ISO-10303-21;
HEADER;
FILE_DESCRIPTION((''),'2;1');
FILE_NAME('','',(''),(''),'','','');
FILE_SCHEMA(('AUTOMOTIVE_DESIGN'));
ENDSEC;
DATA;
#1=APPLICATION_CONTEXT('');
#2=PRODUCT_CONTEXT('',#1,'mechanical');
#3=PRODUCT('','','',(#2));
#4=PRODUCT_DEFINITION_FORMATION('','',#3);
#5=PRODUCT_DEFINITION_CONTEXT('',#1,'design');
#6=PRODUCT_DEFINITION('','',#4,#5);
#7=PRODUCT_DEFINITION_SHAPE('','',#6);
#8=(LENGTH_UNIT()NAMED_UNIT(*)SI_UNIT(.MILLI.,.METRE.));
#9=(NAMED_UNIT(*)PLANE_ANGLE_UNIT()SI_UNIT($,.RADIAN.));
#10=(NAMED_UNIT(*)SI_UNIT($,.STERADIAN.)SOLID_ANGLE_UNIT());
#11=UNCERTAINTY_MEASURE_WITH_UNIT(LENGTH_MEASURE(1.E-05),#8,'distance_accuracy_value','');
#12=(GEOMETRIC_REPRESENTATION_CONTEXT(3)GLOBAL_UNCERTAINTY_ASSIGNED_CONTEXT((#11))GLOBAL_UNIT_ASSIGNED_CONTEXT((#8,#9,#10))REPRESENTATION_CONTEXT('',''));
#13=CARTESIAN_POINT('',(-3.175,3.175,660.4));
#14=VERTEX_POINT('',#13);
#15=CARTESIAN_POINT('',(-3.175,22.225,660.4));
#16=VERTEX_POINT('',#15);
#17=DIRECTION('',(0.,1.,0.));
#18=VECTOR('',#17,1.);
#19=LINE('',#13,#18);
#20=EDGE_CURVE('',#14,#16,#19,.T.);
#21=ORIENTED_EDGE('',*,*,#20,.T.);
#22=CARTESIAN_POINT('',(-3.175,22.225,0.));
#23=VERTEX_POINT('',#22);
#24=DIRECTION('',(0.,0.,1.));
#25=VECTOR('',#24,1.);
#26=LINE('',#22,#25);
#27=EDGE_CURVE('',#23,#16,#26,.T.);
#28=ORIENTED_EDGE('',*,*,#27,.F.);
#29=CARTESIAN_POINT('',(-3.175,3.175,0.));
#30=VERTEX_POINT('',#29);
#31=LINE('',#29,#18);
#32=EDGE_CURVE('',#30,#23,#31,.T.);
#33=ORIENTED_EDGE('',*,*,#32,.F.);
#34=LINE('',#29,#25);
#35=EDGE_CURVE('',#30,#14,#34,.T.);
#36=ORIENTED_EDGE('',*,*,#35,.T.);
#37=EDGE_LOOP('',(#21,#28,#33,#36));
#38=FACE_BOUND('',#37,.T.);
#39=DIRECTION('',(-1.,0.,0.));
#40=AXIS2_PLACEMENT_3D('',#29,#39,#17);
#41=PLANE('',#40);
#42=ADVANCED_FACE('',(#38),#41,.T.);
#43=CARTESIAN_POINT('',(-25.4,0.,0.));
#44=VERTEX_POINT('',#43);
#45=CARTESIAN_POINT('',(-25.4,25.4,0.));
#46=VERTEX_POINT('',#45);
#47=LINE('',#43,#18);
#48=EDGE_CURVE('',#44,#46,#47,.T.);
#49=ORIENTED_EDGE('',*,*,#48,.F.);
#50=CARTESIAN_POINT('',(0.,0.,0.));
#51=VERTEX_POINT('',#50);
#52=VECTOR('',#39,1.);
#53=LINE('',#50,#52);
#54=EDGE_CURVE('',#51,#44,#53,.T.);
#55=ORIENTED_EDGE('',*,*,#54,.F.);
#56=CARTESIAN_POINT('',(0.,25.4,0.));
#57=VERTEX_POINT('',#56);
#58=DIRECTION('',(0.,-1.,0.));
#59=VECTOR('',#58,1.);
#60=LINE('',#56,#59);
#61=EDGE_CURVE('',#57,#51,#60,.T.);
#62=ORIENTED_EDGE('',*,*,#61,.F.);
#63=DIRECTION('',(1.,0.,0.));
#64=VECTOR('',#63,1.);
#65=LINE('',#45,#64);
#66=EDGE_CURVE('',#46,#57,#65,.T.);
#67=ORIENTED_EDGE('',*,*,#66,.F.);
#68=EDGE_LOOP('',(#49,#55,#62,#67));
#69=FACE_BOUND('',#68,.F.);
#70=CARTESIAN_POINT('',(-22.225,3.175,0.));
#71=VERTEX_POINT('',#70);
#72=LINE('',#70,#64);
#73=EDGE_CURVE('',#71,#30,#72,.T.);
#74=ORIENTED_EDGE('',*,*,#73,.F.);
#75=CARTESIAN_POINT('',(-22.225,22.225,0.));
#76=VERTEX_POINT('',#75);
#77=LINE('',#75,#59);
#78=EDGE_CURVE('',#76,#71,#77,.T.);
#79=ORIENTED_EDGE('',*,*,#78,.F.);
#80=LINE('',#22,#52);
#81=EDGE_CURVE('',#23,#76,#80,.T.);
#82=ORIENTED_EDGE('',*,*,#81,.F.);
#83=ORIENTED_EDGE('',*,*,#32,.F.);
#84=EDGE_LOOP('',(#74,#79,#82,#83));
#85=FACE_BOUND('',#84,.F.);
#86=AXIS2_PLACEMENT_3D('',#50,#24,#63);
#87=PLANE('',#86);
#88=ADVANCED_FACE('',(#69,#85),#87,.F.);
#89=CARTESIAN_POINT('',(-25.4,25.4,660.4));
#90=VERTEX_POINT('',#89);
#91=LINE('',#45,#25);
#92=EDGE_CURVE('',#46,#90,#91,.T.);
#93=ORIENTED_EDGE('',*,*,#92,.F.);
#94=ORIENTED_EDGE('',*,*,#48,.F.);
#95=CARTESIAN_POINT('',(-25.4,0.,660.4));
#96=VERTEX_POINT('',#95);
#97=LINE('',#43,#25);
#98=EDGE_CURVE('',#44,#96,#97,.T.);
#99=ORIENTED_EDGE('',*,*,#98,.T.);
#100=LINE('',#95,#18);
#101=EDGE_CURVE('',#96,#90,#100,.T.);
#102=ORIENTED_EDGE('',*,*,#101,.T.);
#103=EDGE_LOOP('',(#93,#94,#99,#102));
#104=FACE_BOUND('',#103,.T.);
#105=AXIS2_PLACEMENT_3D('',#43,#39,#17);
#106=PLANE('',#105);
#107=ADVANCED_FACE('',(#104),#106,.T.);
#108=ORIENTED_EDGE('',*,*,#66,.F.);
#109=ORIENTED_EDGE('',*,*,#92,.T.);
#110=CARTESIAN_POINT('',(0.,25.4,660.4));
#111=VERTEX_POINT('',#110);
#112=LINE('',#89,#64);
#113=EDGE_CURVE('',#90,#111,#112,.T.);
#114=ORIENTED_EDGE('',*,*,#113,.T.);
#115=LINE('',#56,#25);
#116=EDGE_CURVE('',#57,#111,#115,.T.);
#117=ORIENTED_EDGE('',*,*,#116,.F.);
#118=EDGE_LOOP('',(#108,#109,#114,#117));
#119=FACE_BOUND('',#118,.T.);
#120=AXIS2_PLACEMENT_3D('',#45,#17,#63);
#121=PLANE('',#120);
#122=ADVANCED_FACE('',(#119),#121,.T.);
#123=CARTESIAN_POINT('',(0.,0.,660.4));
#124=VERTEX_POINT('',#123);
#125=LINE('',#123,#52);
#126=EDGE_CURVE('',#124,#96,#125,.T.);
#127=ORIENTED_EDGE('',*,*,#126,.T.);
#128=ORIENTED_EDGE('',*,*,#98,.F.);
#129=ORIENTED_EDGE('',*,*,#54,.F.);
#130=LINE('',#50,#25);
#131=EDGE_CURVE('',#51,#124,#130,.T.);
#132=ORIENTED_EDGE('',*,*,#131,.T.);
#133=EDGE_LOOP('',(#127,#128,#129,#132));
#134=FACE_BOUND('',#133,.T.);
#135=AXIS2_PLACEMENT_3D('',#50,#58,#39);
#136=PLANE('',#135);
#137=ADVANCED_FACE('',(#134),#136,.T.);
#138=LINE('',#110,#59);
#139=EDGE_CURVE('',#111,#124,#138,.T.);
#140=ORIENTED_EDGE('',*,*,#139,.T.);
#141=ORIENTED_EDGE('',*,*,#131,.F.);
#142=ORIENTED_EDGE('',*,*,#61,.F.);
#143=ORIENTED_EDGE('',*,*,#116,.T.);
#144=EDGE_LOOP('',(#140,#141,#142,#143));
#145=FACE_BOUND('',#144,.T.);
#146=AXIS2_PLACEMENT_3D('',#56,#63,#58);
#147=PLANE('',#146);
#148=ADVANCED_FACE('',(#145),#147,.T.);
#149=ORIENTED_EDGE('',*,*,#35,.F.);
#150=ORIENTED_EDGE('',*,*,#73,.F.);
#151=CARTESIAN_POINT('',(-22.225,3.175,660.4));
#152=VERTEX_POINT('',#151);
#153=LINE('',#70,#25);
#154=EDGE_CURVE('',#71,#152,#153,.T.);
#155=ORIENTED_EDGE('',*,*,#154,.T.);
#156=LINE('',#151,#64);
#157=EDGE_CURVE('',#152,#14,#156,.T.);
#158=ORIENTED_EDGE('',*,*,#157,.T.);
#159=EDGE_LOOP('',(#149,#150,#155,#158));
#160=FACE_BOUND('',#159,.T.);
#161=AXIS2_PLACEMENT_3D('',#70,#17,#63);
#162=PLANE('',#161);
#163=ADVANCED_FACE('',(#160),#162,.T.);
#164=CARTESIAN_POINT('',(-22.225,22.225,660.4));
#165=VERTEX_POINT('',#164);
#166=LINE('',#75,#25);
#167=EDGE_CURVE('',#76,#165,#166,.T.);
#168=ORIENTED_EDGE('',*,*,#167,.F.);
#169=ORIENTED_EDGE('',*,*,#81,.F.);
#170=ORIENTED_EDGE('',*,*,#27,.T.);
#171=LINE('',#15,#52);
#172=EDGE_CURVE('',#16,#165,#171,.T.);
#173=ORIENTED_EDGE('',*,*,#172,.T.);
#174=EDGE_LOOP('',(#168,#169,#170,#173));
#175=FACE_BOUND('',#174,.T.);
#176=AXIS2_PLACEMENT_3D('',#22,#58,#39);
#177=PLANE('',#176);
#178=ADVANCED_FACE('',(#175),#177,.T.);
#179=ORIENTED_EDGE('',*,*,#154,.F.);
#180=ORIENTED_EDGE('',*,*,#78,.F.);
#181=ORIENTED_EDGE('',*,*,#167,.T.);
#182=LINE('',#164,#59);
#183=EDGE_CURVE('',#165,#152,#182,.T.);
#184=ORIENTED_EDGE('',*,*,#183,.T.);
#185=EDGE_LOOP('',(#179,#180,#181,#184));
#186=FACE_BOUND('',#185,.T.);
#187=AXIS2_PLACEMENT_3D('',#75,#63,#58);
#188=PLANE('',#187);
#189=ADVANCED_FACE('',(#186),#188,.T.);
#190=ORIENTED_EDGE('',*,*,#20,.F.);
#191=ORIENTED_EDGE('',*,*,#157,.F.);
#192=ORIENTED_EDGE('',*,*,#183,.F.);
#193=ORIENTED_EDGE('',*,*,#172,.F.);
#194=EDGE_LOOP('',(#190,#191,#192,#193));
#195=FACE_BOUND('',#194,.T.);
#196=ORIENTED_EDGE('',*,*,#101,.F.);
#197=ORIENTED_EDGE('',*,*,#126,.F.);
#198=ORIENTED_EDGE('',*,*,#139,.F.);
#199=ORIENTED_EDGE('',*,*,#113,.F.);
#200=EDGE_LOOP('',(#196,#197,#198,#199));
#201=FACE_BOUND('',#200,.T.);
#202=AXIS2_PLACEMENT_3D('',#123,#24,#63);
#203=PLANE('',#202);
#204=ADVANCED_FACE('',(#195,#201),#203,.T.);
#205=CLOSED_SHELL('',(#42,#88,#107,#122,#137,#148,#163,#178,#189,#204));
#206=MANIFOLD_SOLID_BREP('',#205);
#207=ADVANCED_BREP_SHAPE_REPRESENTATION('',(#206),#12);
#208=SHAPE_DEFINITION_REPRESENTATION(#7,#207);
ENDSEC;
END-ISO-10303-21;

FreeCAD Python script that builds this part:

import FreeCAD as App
import Part
import Sketcher

V = App.Vector
Q = App.Units.Quantity


def add_polygon(sketch, points):
    """Adds a closed chain of lines whose ends are joined by coincident constraints."""
    first, n = sketch.GeometryCount, len(points)
    for a, b in zip(points, points[1:] + points[:1]):
        sketch.addGeometry(Part.LineSegment(App.Vector(*a, 0), App.Vector(*b, 0)), False)
    for i in range(n):
        sketch.addConstraint(Sketcher.Constraint("Coincident", first + i, 2, first + (i + 1) % n, 1))

doc = App.newDocument("Part")
body = doc.addObject("PartDesign::Body", "Body")

# Sketch on XY plane
sketch1 = doc.addObject("Sketcher::SketchObject", "Sketch")
body.addObject(sketch1)
sketch1.AttachmentSupport = (doc.XY_Plane, [""])
sketch1.MapMode = "FlatFace"
add_polygon(sketch1, [(-25, 0), (0, 0), (0, 25), (-25, 25)])  # lines 0-3
add_polygon(sketch1, [(-22, 22), (-3, 22), (-3, 3), (-22, 3)])  # lines 4-7
sketch1.addConstraint([
    Sketcher.Constraint("Horizontal", 0),
    Sketcher.Constraint("Vertical", 1),
    Sketcher.Constraint("Horizontal", 2),
    Sketcher.Constraint("Vertical", 3),
    Sketcher.Constraint("Horizontal", 4),
    Sketcher.Constraint("Vertical", 5),
    Sketcher.Constraint("Horizontal", 6),
    Sketcher.Constraint("Vertical", 7),
    Sketcher.Constraint("Coincident", 0, 2, -1, 1),
    Sketcher.Constraint("Equal", 2, 1),
    Sketcher.Constraint("Equal", 6, 5),
    Sketcher.Constraint("DistanceX", 0, 1, 0, 2, Q("1 in")),
    Sketcher.Constraint("DistanceX", 4, 2, -1, 1, Q("0.125 in")),
    Sketcher.Constraint("DistanceY", -1, 1, 5, 2, Q("0.125 in")),
    Sketcher.Constraint("DistanceY", 4, 2, 1, 2, Q("0.125 in")),
])
pad1 = doc.addObject("PartDesign::Pad", "Pad")
body.addObject(pad1)
pad1.Profile = sketch1
pad1.Length = Q("26 in")

doc.recompute()
